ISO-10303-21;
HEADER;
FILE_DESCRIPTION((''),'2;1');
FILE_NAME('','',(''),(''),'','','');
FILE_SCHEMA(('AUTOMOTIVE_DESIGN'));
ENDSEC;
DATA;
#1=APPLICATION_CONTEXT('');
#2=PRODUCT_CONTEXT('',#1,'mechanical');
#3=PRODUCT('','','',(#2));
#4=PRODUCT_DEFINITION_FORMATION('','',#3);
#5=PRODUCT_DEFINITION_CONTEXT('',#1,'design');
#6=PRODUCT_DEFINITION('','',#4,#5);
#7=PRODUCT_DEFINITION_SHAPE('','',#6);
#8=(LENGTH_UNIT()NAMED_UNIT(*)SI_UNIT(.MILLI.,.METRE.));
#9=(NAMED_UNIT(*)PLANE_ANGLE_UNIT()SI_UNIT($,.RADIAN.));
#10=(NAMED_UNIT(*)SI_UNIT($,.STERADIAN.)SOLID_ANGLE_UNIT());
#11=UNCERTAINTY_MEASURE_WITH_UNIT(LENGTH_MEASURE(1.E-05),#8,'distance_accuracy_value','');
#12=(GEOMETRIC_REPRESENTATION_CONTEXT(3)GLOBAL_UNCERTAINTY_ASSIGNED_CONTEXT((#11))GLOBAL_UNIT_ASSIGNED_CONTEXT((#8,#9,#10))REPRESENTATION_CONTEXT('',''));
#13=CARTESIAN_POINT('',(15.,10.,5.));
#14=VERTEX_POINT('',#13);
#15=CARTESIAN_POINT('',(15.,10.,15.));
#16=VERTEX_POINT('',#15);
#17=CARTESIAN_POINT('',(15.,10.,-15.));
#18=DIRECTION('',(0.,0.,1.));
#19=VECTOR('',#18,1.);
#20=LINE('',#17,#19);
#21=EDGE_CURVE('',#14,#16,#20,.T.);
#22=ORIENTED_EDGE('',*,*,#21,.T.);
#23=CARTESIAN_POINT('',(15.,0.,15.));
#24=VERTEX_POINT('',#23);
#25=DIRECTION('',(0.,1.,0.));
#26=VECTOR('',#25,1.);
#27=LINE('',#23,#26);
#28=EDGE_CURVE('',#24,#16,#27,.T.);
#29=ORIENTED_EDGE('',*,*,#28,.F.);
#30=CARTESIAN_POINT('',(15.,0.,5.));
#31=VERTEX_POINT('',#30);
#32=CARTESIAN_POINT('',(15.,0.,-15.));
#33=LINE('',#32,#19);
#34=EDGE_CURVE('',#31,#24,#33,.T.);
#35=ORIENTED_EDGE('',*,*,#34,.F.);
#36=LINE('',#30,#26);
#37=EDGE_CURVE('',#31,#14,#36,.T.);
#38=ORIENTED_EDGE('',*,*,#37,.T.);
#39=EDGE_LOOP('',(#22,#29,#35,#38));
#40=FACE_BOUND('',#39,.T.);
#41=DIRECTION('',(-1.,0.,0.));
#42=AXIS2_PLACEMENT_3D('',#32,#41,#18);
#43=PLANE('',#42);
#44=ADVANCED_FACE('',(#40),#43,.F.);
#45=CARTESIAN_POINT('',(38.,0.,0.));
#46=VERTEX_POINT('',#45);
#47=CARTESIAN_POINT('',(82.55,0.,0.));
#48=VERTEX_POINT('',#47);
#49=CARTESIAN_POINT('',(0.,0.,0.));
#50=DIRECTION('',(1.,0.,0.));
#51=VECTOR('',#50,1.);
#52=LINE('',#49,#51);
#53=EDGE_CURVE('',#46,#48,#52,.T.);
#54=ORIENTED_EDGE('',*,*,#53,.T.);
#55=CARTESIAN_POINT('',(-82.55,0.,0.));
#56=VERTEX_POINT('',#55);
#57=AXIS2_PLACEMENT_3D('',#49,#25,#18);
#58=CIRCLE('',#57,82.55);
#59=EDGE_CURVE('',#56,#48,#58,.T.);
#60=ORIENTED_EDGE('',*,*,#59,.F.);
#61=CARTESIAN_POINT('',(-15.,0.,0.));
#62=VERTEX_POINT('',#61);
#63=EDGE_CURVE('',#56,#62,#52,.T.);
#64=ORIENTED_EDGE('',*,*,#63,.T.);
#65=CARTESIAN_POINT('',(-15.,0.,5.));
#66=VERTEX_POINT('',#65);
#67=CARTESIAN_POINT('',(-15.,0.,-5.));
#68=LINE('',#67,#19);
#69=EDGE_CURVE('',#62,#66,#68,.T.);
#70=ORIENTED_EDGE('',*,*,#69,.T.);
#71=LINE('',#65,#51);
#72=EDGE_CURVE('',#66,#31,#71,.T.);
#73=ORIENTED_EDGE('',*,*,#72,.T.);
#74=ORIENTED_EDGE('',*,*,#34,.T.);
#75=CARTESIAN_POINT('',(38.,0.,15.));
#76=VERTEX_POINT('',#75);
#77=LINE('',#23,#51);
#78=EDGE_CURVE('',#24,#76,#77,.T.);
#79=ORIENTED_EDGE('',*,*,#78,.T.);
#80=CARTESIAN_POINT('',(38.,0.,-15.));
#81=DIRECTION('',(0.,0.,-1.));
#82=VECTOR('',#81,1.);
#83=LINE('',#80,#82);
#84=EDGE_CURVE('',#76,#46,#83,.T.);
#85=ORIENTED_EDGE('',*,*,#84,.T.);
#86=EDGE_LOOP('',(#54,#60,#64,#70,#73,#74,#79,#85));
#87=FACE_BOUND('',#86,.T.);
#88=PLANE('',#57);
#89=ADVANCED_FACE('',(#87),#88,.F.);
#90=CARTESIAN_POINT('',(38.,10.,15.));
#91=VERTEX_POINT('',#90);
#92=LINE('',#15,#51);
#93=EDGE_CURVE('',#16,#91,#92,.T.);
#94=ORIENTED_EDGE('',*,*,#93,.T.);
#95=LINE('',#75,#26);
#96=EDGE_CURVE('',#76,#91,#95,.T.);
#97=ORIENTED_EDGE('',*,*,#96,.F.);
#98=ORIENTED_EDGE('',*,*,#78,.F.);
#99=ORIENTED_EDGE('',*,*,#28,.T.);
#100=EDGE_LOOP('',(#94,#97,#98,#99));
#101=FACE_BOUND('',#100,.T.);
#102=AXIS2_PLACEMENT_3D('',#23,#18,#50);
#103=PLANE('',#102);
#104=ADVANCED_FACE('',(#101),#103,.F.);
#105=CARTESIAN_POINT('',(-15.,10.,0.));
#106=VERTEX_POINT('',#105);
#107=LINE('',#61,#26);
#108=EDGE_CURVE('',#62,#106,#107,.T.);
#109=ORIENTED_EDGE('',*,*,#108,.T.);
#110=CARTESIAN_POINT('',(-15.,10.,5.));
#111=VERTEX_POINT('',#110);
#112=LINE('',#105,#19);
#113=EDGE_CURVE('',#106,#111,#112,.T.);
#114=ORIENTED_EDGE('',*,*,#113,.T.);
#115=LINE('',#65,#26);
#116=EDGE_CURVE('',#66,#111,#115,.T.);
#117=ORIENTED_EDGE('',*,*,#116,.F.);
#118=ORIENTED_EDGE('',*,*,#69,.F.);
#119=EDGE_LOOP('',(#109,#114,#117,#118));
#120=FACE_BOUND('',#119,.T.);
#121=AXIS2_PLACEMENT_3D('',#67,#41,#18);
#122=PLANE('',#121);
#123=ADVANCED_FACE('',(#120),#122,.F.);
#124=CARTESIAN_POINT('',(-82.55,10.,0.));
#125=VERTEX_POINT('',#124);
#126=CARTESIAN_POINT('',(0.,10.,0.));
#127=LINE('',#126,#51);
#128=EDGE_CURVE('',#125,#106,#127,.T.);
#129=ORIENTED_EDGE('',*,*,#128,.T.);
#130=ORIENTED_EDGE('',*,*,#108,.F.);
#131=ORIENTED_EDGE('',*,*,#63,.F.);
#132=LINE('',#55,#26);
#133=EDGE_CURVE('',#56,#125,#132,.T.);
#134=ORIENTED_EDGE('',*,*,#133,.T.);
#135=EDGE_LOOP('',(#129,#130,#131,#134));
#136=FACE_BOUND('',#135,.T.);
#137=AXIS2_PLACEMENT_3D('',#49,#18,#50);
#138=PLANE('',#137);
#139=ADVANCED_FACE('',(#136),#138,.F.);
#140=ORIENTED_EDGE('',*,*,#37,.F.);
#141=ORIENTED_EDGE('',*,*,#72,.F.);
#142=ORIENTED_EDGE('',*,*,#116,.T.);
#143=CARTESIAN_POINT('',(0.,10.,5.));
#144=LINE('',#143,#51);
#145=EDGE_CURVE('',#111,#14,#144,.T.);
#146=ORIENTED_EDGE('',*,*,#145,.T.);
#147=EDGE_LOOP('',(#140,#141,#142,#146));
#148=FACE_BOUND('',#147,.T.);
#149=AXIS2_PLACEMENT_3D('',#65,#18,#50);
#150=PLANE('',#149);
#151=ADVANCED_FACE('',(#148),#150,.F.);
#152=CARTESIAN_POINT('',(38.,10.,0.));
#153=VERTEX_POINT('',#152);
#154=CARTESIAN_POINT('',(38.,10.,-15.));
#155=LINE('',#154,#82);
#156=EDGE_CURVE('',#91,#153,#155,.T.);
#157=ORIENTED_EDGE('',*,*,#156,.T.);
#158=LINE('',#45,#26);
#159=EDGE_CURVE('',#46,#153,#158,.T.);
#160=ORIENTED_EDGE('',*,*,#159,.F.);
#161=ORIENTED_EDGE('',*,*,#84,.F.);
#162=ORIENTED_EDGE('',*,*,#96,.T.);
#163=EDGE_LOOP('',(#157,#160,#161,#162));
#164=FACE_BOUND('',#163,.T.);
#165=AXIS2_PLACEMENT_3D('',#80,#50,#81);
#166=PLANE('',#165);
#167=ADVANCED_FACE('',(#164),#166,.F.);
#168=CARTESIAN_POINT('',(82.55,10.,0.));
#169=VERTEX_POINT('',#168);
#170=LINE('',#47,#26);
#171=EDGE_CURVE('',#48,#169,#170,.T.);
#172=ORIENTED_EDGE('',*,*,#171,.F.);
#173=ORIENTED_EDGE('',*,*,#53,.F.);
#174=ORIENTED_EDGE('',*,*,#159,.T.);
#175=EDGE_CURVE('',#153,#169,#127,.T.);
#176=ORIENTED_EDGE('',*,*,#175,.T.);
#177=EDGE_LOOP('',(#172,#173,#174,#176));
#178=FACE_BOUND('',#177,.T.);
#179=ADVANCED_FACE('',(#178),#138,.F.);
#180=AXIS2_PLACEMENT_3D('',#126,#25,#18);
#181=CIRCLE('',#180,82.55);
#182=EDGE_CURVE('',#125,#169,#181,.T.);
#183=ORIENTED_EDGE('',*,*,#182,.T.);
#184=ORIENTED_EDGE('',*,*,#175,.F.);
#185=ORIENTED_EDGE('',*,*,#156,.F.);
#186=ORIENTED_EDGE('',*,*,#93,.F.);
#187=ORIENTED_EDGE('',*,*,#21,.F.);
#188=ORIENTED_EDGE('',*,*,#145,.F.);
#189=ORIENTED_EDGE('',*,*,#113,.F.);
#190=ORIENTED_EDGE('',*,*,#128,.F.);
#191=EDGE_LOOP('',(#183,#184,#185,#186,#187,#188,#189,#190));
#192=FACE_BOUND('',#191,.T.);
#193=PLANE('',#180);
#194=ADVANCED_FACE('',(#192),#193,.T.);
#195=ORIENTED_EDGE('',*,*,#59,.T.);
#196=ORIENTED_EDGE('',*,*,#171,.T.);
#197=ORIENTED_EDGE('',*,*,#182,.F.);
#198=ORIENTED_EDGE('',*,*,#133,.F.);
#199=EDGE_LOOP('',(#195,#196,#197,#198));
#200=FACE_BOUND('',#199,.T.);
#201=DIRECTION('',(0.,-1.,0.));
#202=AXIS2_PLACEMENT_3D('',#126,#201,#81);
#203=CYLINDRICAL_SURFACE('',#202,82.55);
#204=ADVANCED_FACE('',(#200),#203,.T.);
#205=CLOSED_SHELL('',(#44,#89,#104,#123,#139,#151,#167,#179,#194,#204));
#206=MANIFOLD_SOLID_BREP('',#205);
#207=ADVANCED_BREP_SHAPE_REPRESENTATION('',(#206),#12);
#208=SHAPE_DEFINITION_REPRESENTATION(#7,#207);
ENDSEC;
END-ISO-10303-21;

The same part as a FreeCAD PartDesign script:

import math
import FreeCAD as App
import Part
import Sketcher

doc = App.newDocument("Part")
body = doc.addObject("PartDesign::Body", "Body")

# Sketch on XZ plane
sketch1 = doc.addObject("Sketcher::SketchObject", "Sketch")
body.addObject(sketch1)
sketch1.AttachmentSupport = (doc.XZ_Plane, [""])
sketch1.MapMode = "FlatFace"
sketch1.addGeometry(Part.Circle(App.Vector(0, 0, 0), App.Vector(0, 0, 1), 83), False)
sketch1.addConstraint([
    Sketcher.Constraint("Coincident", 0, 3, -1, 1),
    Sketcher.Constraint("Diameter", 0, 165.1),
])
pad1 = doc.addObject("PartDesign::Pad", "Pad")
body.addObject(pad1)
pad1.Profile = sketch1
pad1.Length = 10
pad1.Reversed = True

# Sketch on XZ plane
sketch2 = doc.addObject("Sketcher::SketchObject", "Sketch001")
body.addObject(sketch2)
sketch2.AttachmentSupport = (doc.XZ_Plane, [""])
sketch2.MapMode = "FlatFace"
sketch2.AttachmentOffset = App.Placement(App.Vector(0, 0, -13), App.Rotation())
sketch2.addGeometry([
    Part.LineSegment(App.Vector(-15, -5, 0), App.Vector(-15, 5, 0)),
    Part.LineSegment(App.Vector(-15, 5, 0), App.Vector(15, 5, 0)),
    Part.LineSegment(App.Vector(15, 5, 0), App.Vector(15, -5, 0)),
    Part.LineSegment(App.Vector(15, -5, 0), App.Vector(-15, -5, 0)),
], False)
sketch2.addConstraint([
    Sketcher.Constraint("Coincident", 0, 2, 1, 1),
    Sketcher.Constraint("Coincident", 1, 2, 2, 1),
    Sketcher.Constraint("Coincident", 2, 2, 3, 1),
    Sketcher.Constraint("Coincident", 3, 2, 0, 1),
    Sketcher.Constraint("Vertical", 0),
    Sketcher.Constraint("Horizontal", 1),
    Sketcher.Constraint("Vertical", 2),
    Sketcher.Constraint("Horizontal", 3),
    Sketcher.Constraint("Symmetric", 0, 2, 2, 2, -1, 1),
    Sketcher.Constraint("DistanceX", 1, 1, 1, 2, 30.0),
    Sketcher.Constraint("DistanceY", 0, 1, 0, 2, 10.0),
])
pocket1 = doc.addObject("PartDesign::Pocket", "Pocket")
body.addObject(pocket1)
pocket1.Profile = sketch2
pocket1.Length = 13
pocket1.Reversed = True

# Sketch on XZ plane
sketch3 = doc.addObject("Sketcher::SketchObject", "Sketch002")
body.addObject(sketch3)
sketch3.AttachmentSupport = (doc.XZ_Plane, [""])
sketch3.MapMode = "FlatFace"
sketch3.addGeometry([
    Part.ArcOfCircle(Part.Circle(App.Vector(0, 0, 0), App.Vector(0, 0, 1), 83), math.radians(180), math.radians(360)),  # 0
    Part.LineSegment(App.Vector(-83, 0, 0), App.Vector(-15, 0, 0)),  # 1
    Part.LineSegment(App.Vector(-15, 0, 0), App.Vector(-15, -5, 0)),  # 2
    Part.LineSegment(App.Vector(-15, -5, 0), App.Vector(15, -5, 0)),  # 3
    Part.LineSegment(App.Vector(15, -5, 0), App.Vector(15, 0, 0)),  # 4
    Part.LineSegment(App.Vector(15, 0, 0), App.Vector(83, 0, 0)),  # 5
], False)
sketch3.addConstraint([
    Sketcher.Constraint("Coincident", 0, 1, 1, 1),
    Sketcher.Constraint("Coincident", 1, 2, 2, 1),
    Sketcher.Constraint("Coincident", 2, 2, 3, 1),
    Sketcher.Constraint("Coincident", 3, 2, 4, 1),
    Sketcher.Constraint("Coincident", 4, 2, 5, 1),
    Sketcher.Constraint("Coincident", 5, 2, 0, 2),
    Sketcher.Constraint("Horizontal", 1),
    Sketcher.Constraint("Vertical", 2),
    Sketcher.Constraint("Horizontal", 3),
    Sketcher.Constraint("Vertical", 4),
    Sketcher.Constraint("Horizontal", 5),
    Sketcher.Constraint("Coincident", 0, 3, -1, 1),
    Sketcher.Constraint("Symmetric", 1, 2, 4, 2, -1, 1),
    Sketcher.Constraint("PointOnObject", 0, 1, -1),
    Sketcher.Constraint("DistanceX", 3, 1, 3, 2, 30.0),
    Sketcher.Constraint("DistanceY", 2, 2, 2, 1, 5.0),
    Sketcher.Constraint("Radius", 0, 82.55),
])
pocket2 = doc.addObject("PartDesign::Pocket", "Pocket001")
body.addObject(pocket2)
pocket2.Profile = sketch3
pocket2.Length = 10

# Sketch on XZ plane
sketch4 = doc.addObject("Sketcher::SketchObject", "Sketch003")
body.addObject(sketch4)
sketch4.AttachmentSupport = (doc.XZ_Plane, [""])
sketch4.MapMode = "FlatFace"
sketch4.AttachmentOffset = App.Placement(App.Vector(0, 0, -10), App.Rotation())
sketch4.addGeometry([
    Part.LineSegment(App.Vector(15, -15, 0), App.Vector(15, 15, 0)),
    Part.LineSegment(App.Vector(15, 15, 0), App.Vector(38, 15, 0)),
    Part.LineSegment(App.Vector(38, 15, 0), App.Vector(38, -15, 0)),
    Part.LineSegment(App.Vector(38, -15, 0), App.Vector(15, -15, 0)),
], False)
sketch4.addConstraint([
    Sketcher.Constraint("Coincident", 0, 2, 1, 1),
    Sketcher.Constraint("Coincident", 1, 2, 2, 1),
    Sketcher.Constraint("Coincident", 2, 2, 3, 1),
    Sketcher.Constraint("Coincident", 3, 2, 0, 1),
    Sketcher.Constraint("Vertical", 0),
    Sketcher.Constraint("Horizontal", 1),
    Sketcher.Constraint("Vertical", 2),
    Sketcher.Constraint("Horizontal", 3),
    Sketcher.Constraint("DistanceX", 1, 1, 1, 2, 23.0),
    Sketcher.Constraint("DistanceY", 0, 1, 0, 2, 30.0),
    Sketcher.Constraint("DistanceX", -1, 1, 0, 2, 15.0),
    Sketcher.Constraint("DistanceY", -1, 1, 0, 2, 15.0),
])
pocket3 = doc.addObject("PartDesign::Pocket", "Pocket002")
body.addObject(pocket3)
pocket3.Profile = sketch4
pocket3.Length = 10
pocket3.Reversed = True

doc.recompute()
